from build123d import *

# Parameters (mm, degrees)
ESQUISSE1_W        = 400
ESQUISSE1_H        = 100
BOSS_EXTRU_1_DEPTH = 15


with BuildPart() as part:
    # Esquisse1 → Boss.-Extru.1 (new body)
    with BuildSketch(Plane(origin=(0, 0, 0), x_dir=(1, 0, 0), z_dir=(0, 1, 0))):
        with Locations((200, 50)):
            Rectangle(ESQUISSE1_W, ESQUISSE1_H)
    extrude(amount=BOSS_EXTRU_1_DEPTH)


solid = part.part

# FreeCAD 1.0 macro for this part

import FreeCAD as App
import Part
import Sketcher
from FreeCAD import Vector

doc = App.newDocument("Part")
params = doc.addObject("Spreadsheet::Sheet", "Params")
for row, (alias, value) in enumerate([
    ("sketch1_width", "400 mm"),
    ("sketch1_height", "100 mm"),
    ("pad1_length", "15 mm"),
], start=1):
    params.set(f"A{row}", alias)
    params.set(f"B{row}", "=" + value)
    params.setAlias(f"B{row}", alias)

body = doc.addObject("PartDesign::Body", "Body")

sketch1 = body.newObject("Sketcher::SketchObject", "Sketch")
sketch1.AttachmentSupport = (doc.getObject("XZ_Plane"), [""])
sketch1.MapMode = "FlatFace"
sketch1.addGeometry([
    Part.LineSegment(Vector(0, -100, 0), Vector(0, 0, 0)),
    Part.LineSegment(Vector(0, 0, 0), Vector(400, 0, 0)),
    Part.LineSegment(Vector(400, 0, 0), Vector(400, -100, 0)),
    Part.LineSegment(Vector(400, -100, 0), Vector(0, -100, 0)),
], False)
sketch1.addConstraint([
    Sketcher.Constraint("Coincident", 0, 2, 1, 1),
    Sketcher.Constraint("Coincident", 1, 2, 2, 1),
    Sketcher.Constraint("Coincident", 2, 2, 3, 1),
    Sketcher.Constraint("Coincident", 3, 2, 0, 1),
    Sketcher.Constraint("Vertical", 0),
    Sketcher.Constraint("Horizontal", 1),
    Sketcher.Constraint("Vertical", 2),
    Sketcher.Constraint("Horizontal", 3),
    Sketcher.Constraint("Coincident", 0, 2, -1, 1),
    Sketcher.Constraint("DistanceX", 1, 1, 1, 2, 400.0),
    Sketcher.Constraint("DistanceY", 0, 1, 0, 2, 100.0),
])
sketch1.setExpression("Constraints[9]", "Params.sketch1_width")
sketch1.setExpression("Constraints[10]", "Params.sketch1_height")
pad1 = body.newObject("PartDesign::Pad", "Pad")
pad1.Profile = sketch1
pad1.setExpression("Length", "Params.pad1_length")
pad1.Reversed = True

doc.recompute()
